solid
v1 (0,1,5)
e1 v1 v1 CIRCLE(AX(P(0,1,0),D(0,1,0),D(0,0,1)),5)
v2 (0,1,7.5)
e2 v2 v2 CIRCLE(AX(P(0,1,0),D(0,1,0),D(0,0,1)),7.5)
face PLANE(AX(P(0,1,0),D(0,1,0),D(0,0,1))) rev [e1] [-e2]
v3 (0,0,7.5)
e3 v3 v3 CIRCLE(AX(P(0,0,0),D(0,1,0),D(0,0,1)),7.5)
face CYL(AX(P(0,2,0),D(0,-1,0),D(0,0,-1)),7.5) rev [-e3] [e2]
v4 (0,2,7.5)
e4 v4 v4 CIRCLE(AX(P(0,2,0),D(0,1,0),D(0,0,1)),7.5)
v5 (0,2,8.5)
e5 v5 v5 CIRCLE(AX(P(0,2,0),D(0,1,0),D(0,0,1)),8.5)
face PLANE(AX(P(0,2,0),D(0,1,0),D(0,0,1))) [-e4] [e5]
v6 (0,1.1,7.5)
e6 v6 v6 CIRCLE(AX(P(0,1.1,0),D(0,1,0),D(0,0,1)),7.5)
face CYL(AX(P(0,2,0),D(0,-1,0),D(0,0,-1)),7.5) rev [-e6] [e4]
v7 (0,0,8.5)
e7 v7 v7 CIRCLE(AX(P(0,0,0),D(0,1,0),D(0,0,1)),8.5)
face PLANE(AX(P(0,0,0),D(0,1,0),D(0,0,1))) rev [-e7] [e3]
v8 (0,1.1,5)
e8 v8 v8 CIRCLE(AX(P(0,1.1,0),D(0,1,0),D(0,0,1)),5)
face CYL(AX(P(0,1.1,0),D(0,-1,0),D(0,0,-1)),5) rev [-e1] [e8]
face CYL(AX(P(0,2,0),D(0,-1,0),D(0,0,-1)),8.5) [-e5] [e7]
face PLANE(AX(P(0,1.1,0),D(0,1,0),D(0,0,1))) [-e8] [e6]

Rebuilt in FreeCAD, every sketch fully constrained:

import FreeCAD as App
import Part
import Sketcher
from FreeCAD import Vector

doc = App.newDocument("Part")
body = doc.addObject("PartDesign::Body", "Body")

# Sketch on XZ plane
sketch1 = body.newObject("Sketcher::SketchObject", "Sketch")
sketch1.AttachmentSupport = (doc.getObject("XZ_Plane"), [""])
sketch1.MapMode = "FlatFace"
sketch1.addGeometry([
    Part.Circle(Vector(0, 0, 0), Vector(0, 0, 1), 8),
    Part.Circle(Vector(0, 0, 0), Vector(0, 0, 1), 8),
], False)
sketch1.addConstraint([
    Sketcher.Constraint("Coincident", 0, 3, -1, 1),
    Sketcher.Constraint("Coincident", 1, 3, -1, 1),
    Sketcher.Constraint("Diameter", 0, 17.0),
    Sketcher.Constraint("Diameter", 1, 15.0),
])
pad1 = body.newObject("PartDesign::Pad", "Pad")
pad1.Profile = sketch1
pad1.Length = 2
pad1.Reversed = True

# Sketch on XZ plane
sketch2 = body.newObject("Sketcher::SketchObject", "Sketch001")
sketch2.AttachmentSupport = (doc.getObject("XZ_Plane"), [""])
sketch2.MapMode = "FlatFace"
sketch2.AttachmentOffset = App.Placement(Vector(0, 0, -1), App.Rotation())
sketch2.addGeometry([
    Part.Circle(Vector(0, 0, 0), Vector(0, 0, 1), 8),
    Part.Circle(Vector(0, 0, 0), Vector(0, 0, 1), 5),
], False)
sketch2.addConstraint([
    Sketcher.Constraint("Coincident", 0, 3, -1, 1),
    Sketcher.Constraint("Coincident", 1, 3, -1, 1),
    Sketcher.Constraint("Diameter", 0, 15.0),
    Sketcher.Constraint("Diameter", 1, 10.0),
])
pad2 = body.newObject("PartDesign::Pad", "Pad001")
pad2.Profile = sketch2
pad2.Length = 0.1
pad2.Reversed = True

doc.recompute()
